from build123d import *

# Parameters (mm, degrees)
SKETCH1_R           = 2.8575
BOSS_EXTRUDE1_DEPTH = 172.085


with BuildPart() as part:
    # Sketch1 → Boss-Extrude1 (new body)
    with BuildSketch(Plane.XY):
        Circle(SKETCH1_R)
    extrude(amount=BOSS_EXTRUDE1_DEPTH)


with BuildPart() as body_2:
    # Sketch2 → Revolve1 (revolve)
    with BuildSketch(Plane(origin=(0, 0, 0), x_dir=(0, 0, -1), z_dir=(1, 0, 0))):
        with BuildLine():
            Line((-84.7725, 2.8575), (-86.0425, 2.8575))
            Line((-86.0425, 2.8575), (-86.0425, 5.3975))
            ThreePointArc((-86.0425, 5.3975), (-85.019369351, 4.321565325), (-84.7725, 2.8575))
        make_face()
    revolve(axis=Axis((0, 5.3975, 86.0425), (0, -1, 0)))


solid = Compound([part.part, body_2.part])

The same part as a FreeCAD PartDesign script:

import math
import FreeCAD as App
import Part
import Sketcher
Q = App.Units.Quantity

doc = App.newDocument("Part")
body = doc.addObject("PartDesign::Body", "Body")

sketch1 = body.newObject("Sketcher::SketchObject", "Sketch")
sketch1.AttachmentSupport = (doc.getObject("XY_Plane"), [""])
sketch1.MapMode = "FlatFace"
sketch1.addGeometry(Part.Circle(App.Vector(0, 0, 0), App.Vector(0, 0, 1), 2.9), False)
sketch1.addConstraint([
    Sketcher.Constraint("Coincident", 0, 3, -1, 1),
    Sketcher.Constraint("Diameter", 0, Q("0.225 in")),
])
pad1 = body.newObject("PartDesign::Pad", "Pad")
pad1.Profile = sketch1
pad1.Length = Q("6.775 in")
body2 = doc.addObject("PartDesign::Body", "Body001")

sketch2 = body2.newObject("Sketcher::SketchObject", "Sketch001")
sketch2.AttachmentSupport = (doc.getObject("YZ_Plane001"), [""])
sketch2.MapMode = "FlatFace"
sketch2.addGeometry([
    Part.LineSegment(App.Vector(2.9, 86, 0), App.Vector(2.9, 84.8, 0)),
    Part.ArcOfCircle(Part.Circle(App.Vector(3.2, 87.3, 0), App.Vector(0, 0, 1), 2.5), math.radians(-97), math.radians(-29)),
    Part.LineSegment(App.Vector(5.4, 86, 0), App.Vector(2.9, 86, 0)),
], False)
sketch2.addGeometry(Part.LineSegment(App.Vector(5.4, 86, 0), App.Vector(2.9, 86, 0)), True)
sketch2.addConstraint([
    Sketcher.Constraint("Coincident", 0, 2, 1, 1),
    Sketcher.Constraint("Coincident", 1, 2, 2, 1),
    Sketcher.Constraint("Coincident", 2, 2, 0, 1),
    Sketcher.Constraint("Vertical", 0),
    Sketcher.Constraint("Horizontal", 2),
    Sketcher.Constraint("Horizontal", 3),
    Sketcher.Constraint("Coincident", 3, 1, 1, 2),
    Sketcher.Constraint("Vertical", 0, 2, 3, 2),
    Sketcher.Constraint("Radius", 1, Q("0.1 in")),
    Sketcher.Constraint("DistanceX", 2, 2, 2, 1, Q("0.1 in")),
    Sketcher.Constraint("DistanceY", 0, 2, 0, 1, Q("0.05 in")),
    Sketcher.Constraint("DistanceX", -1, 1, 0, 2, Q("0.1125 in")),
    Sketcher.Constraint("DistanceY", -1, 1, 0, 2, Q("3.3375 in")),
])
revolution = body2.newObject("PartDesign::Revolution", "Revolution")
revolution.Profile = sketch2
revolution.ReferenceAxis = (sketch2, ["Axis0"])
revolution.Angle = 360

doc.recompute()
